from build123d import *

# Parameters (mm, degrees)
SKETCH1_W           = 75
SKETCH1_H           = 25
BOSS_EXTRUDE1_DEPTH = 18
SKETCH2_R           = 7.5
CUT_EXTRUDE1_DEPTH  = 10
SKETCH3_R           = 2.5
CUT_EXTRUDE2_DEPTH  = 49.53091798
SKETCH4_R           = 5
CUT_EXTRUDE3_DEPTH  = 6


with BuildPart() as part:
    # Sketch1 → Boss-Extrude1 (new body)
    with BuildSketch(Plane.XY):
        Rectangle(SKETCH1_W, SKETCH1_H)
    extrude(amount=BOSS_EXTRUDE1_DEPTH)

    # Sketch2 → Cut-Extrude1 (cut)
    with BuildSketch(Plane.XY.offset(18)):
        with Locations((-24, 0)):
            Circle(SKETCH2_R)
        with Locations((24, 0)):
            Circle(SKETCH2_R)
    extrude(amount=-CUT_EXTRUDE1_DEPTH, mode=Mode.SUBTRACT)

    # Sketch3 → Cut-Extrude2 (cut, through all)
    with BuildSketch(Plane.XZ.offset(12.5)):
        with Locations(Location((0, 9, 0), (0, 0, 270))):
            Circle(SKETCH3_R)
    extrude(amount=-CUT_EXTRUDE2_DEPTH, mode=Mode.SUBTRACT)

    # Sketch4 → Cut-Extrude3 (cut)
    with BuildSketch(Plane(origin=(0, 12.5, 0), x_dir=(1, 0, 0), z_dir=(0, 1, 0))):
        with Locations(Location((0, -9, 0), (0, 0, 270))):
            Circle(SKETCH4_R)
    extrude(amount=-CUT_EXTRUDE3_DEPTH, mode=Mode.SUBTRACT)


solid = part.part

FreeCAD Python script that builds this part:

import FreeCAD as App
import Part
import Sketcher

V = App.Vector


def add_polygon(sketch, points):
    """Adds a closed chain of lines whose ends are joined by coincident constraints."""
    first, n = sketch.GeometryCount, len(points)
    for a, b in zip(points, points[1:] + points[:1]):
        sketch.addGeometry(Part.LineSegment(App.Vector(*a, 0), App.Vector(*b, 0)), False)
    for i in range(n):
        sketch.addConstraint(Sketcher.Constraint("Coincident", first + i, 2, first + (i + 1) % n, 1))

doc = App.newDocument("Part")
body = doc.addObject("PartDesign::Body", "Body")

sketch1 = body.newObject("Sketcher::SketchObject", "Sketch")
sketch1.AttachmentSupport = (doc.getObject("XY_Plane"), [""])
sketch1.MapMode = "FlatFace"
add_polygon(sketch1, [(-37.5, 12.5), (-37.5, -12.5), (37.5, -12.5), (37.5, 12.5)])
sketch1.addConstraint(Sketcher.Constraint("Vertical", 0))
sketch1.addConstraint(Sketcher.Constraint("Horizontal", 1))
sketch1.addConstraint(Sketcher.Constraint("Vertical", 2))
sketch1.addConstraint(Sketcher.Constraint("Horizontal", 3))
sketch1.addConstraint(Sketcher.Constraint("Symmetric", 0, 2, 2, 2, -1, 1))
sketch1.addConstraint(Sketcher.Constraint("DistanceX", 1, 1, 1, 2, 75.0))
sketch1.addConstraint(Sketcher.Constraint("DistanceY", 0, 2, 0, 1, 25.0))
pad1 = body.newObject("PartDesign::Pad", "Pad")
pad1.Profile = sketch1
pad1.Length = 18

sketch2 = body.newObject("Sketcher::SketchObject", "Sketch001")
sketch2.AttachmentSupport = (doc.getObject("XY_Plane"), [""])
sketch2.MapMode = "FlatFace"
sketch2.AttachmentOffset = App.Placement(V(0, 0, 18), App.Rotation())
sketch2.addGeometry(Part.Circle(V(-24, 0, 0), V(0, 0, 1), 7.5), False)
sketch2.addGeometry(Part.Circle(V(24, 0, 0), V(0, 0, 1), 7.5), False)
sketch2.addConstraint(Sketcher.Constraint("Equal", 0, 1))
sketch2.addConstraint(Sketcher.Constraint("Symmetric", 0, 3, 1, 3, -1, 1))
sketch2.addConstraint(Sketcher.Constraint("PointOnObject", 0, 3, -1))
sketch2.addConstraint(Sketcher.Constraint("Diameter", 0, 15.0))
sketch2.addConstraint(Sketcher.Constraint("DistanceX", 0, 3, -1, 1, 24.0))
pocket1 = body.newObject("PartDesign::Pocket", "Pocket")
pocket1.Profile = sketch2
pocket1.Length = 10

sketch3 = body.newObject("Sketcher::SketchObject", "Sketch002")
sketch3.AttachmentSupport = (doc.getObject("XZ_Plane"), [""])
sketch3.MapMode = "FlatFace"
sketch3.AttachmentOffset = App.Placement(V(0, 0, 12.5), App.Rotation())
sketch3.addGeometry(Part.Circle(V(0, 9, 0), V(0, 0, 1), 2.5), False)
sketch3.addConstraint(Sketcher.Constraint("PointOnObject", 0, 3, -2))
sketch3.addConstraint(Sketcher.Constraint("Diameter", 0, 5.0))
sketch3.addConstraint(Sketcher.Constraint("DistanceY", -1, 1, 0, 3, 9.0))
pocket2 = body.newObject("PartDesign::Pocket", "Pocket001")
pocket2.Profile = sketch3
pocket2.Type = "ThroughAll"

sketch4 = body.newObject("Sketcher::SketchObject", "Sketch003")
sketch4.AttachmentSupport = (doc.getObject("XZ_Plane"), [""])
sketch4.MapMode = "FlatFace"
sketch4.AttachmentOffset = App.Placement(V(0, 0, -12.5), App.Rotation())
sketch4.addGeometry(Part.Circle(V(0, 9, 0), V(0, 0, 1), 5), False)
sketch4.addConstraint(Sketcher.Constraint("PointOnObject", 0, 3, -2))
sketch4.addConstraint(Sketcher.Constraint("Diameter", 0, 10.0))
sketch4.addConstraint(Sketcher.Constraint("DistanceY", -1, 1, 0, 3, 9.0))
pocket3 = body.newObject("PartDesign::Pocket", "Pocket002")
pocket3.Profile = sketch4
pocket3.Length = 6
pocket3.Reversed = True

doc.recompute()
